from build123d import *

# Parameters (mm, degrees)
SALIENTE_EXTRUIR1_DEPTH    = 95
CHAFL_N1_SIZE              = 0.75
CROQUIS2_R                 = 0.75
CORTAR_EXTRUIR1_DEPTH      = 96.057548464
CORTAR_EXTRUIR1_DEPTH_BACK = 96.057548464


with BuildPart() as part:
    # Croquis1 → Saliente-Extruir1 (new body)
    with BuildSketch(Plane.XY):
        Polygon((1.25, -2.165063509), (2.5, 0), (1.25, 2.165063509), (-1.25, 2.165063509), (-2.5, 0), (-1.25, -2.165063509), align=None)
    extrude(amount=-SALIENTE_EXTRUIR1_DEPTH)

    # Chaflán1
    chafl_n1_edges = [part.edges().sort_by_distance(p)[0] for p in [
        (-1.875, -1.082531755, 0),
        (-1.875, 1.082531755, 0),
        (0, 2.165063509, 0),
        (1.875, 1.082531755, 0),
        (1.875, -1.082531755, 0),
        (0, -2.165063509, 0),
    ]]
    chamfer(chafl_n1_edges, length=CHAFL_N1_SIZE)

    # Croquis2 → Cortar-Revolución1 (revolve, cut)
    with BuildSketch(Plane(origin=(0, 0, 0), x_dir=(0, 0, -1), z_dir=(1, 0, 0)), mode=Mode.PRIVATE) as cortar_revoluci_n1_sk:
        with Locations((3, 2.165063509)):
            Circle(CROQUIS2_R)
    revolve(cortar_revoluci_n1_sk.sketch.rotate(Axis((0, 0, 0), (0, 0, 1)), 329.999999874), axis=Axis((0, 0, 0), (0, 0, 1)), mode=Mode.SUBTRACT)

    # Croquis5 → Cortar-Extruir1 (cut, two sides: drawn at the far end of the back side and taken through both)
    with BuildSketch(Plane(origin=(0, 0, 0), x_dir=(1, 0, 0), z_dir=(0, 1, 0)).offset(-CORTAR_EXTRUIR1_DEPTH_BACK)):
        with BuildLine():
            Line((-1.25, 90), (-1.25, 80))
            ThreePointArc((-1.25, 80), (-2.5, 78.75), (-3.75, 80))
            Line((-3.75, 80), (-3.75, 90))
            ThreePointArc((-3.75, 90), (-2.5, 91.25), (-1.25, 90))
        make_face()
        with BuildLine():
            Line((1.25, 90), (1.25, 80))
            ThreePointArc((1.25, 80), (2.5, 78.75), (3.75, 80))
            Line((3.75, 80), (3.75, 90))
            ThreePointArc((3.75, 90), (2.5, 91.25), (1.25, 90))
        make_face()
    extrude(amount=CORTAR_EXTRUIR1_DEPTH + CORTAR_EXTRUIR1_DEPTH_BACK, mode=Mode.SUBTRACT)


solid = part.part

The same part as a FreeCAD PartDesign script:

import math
import FreeCAD as App
import Part
import Sketcher

V = App.Vector
Q = App.Units.Quantity


def edges_at(feature, points):
    """Names of the edges that pass closest to the given points."""
    edges = feature.Shape.Edges
    near = lambda p: min(range(len(edges)), key=lambda i: edges[i].distToShape(Part.Vertex(*p))[0])
    return sorted({f"Edge{near(p) + 1}" for p in points})

doc = App.newDocument("Part")
body = doc.addObject("PartDesign::Body", "Body")

# Sketch on XY plane
sketch1 = body.newObject("Sketcher::SketchObject", "Sketch")
sketch1.AttachmentSupport = (doc.getObject("XY_Plane"), [""])
sketch1.MapMode = "FlatFace"
sketch1.addGeometry(Part.LineSegment(V(1.2, -2.2, 0), V(2.5, 0, 0)), False)
sketch1.addGeometry(Part.LineSegment(V(2.5, 0, 0), V(1.2, 2.2, 0)), False)
sketch1.addGeometry(Part.LineSegment(V(1.2, 2.2, 0), V(-1.2, 2.2, 0)), False)
sketch1.addGeometry(Part.LineSegment(V(-1.2, 2.2, 0), V(-2.5, 0, 0)), False)
sketch1.addGeometry(Part.LineSegment(V(-2.5, 0, 0), V(-1.2, -2.2, 0)), False)
sketch1.addGeometry(Part.LineSegment(V(-1.2, -2.2, 0), V(1.2, -2.2, 0)), False)
sketch1.addConstraint(Sketcher.Constraint("Coincident", 0, 2, 1, 1))
sketch1.addConstraint(Sketcher.Constraint("Coincident", 1, 2, 2, 1))
sketch1.addConstraint(Sketcher.Constraint("Coincident", 2, 2, 3, 1))
sketch1.addConstraint(Sketcher.Constraint("Coincident", 3, 2, 4, 1))
sketch1.addConstraint(Sketcher.Constraint("Coincident", 4, 2, 5, 1))
sketch1.addConstraint(Sketcher.Constraint("Coincident", 5, 2, 0, 1))
sketch1.addConstraint(Sketcher.Constraint("Horizontal", 2))
sketch1.addConstraint(Sketcher.Constraint("Horizontal", 5))
sketch1.addConstraint(Sketcher.Constraint("Symmetric", 0, 2, 3, 2, -1, 1))
sketch1.addConstraint(Sketcher.Constraint("Symmetric", 1, 2, 4, 2, -1, 1))
sketch1.addConstraint(Sketcher.Constraint("PointOnObject", 0, 2, -1))
sketch1.addConstraint(Sketcher.Constraint("Parallel", 0, 3))
sketch1.addConstraint(Sketcher.Constraint("Vertical", 2, 2, 4, 2))
sketch1.addConstraint(Sketcher.Constraint("Angle", 0, Q("60 deg")))
sketch1.addConstraint(Sketcher.Constraint("DistanceX", 2, 2, 2, 1, 2.5))
sketch1.addConstraint(Sketcher.Constraint("DistanceX", 3, 2, 0, 2, 5.0))
pad1 = body.newObject("PartDesign::Pad", "Pad")
pad1.Profile = sketch1
pad1.Length = 95
pad1.Reversed = True
doc.recompute()

chamfer = body.newObject("PartDesign::Chamfer", "Chamfer")
chamfer.Base = (pad1, edges_at(pad1, [
    (-1.875, -1.083, 0),
    (-1.875, 1.083, 0),
    (0, 2.165, 0),
    (1.875, 1.083, 0),
    (1.875, -1.083, 0),
    (0, -2.165, 0),
]))
chamfer.Size = 0.75

# Sketch on YZ plane
sketch2 = body.newObject("Sketcher::SketchObject", "Sketch001")
sketch2.AttachmentSupport = (doc.getObject("YZ_Plane"), [""])
sketch2.MapMode = "FlatFace"
sketch2.addGeometry(Part.Circle(V(2.2, -3, 0), V(0, 0, 1), 0.8), False)
sketch2.addConstraint(Sketcher.Constraint("Diameter", 0, 1.5))
sketch2.addConstraint(Sketcher.Constraint("DistanceY", 0, 3, -1, 1, 3.0))
sketch2.addConstraint(Sketcher.Constraint("DistanceX", -1, 1, 0, 3, 2.165064))
groove = body.newObject("PartDesign::Groove", "Groove")
groove.Profile = sketch2
groove.ReferenceAxis = (sketch2, ["V_Axis"])
groove.Angle = 360

# Sketch on XZ plane
sketch3 = body.newObject("Sketcher::SketchObject", "Sketch002")
sketch3.AttachmentSupport = (doc.getObject("XZ_Plane"), [""])
sketch3.MapMode = "FlatFace"
sketch3.addGeometry(Part.LineSegment(V(-1.2, -80, 0), V(-1.2, -90, 0)), False)
sketch3.addGeometry(Part.ArcOfCircle(Part.Circle(V(-2.5, -90, 0), V(0, 0, 1), 1.2), math.radians(180), math.radians(360)), False)
sketch3.addGeometry(Part.LineSegment(V(-3.8, -90, 0), V(-3.8, -80, 0)), False)
sketch3.addGeometry(Part.ArcOfCircle(Part.Circle(V(-2.5, -80, 0), V(0, 0, 1), 1.2), math.radians(0), math.radians(180)), False)
sketch3.addGeometry(Part.LineSegment(V(1.2, -90, 0), V(1.2, -80, 0)), False)
sketch3.addGeometry(Part.ArcOfCircle(Part.Circle(V(2.5, -80, 0), V(0, 0, 1), 1.2), math.radians(0), math.radians(180)), False)
sketch3.addGeometry(Part.LineSegment(V(3.8, -80, 0), V(3.8, -90, 0)), False)
sketch3.addGeometry(Part.ArcOfCircle(Part.Circle(V(2.5, -90, 0), V(0, 0, 1), 1.2), math.radians(180), math.radians(360)), False)
sketch3.addConstraint(Sketcher.Constraint("Tangent", 0, 2, 1, 2))
sketch3.addConstraint(Sketcher.Constraint("Tangent", 1, 1, 2, 1))
sketch3.addConstraint(Sketcher.Constraint("Tangent", 2, 2, 3, 2))
sketch3.addConstraint(Sketcher.Constraint("Tangent", 3, 1, 0, 1))
sketch3.addConstraint(Sketcher.Constraint("Tangent", 4, 2, 5, 2))
sketch3.addConstraint(Sketcher.Constraint("Tangent", 5, 1, 6, 1))
sketch3.addConstraint(Sketcher.Constraint("Tangent", 6, 2, 7, 2))
sketch3.addConstraint(Sketcher.Constraint("Tangent", 7, 1, 4, 1))
sketch3.addConstraint(Sketcher.Constraint("Vertical", 0))
sketch3.addConstraint(Sketcher.Constraint("Vertical", 2))
sketch3.addConstraint(Sketcher.Constraint("Vertical", 4))
sketch3.addConstraint(Sketcher.Constraint("Vertical", 6))
sketch3.addConstraint(Sketcher.Constraint("Equal", 3, 5))
sketch3.addConstraint(Sketcher.Constraint("Symmetric", 3, 3, 5, 3, -2))
sketch3.addConstraint(Sketcher.Constraint("Horizontal", 1, 3, 7, 3))
sketch3.addConstraint(Sketcher.Constraint("DistanceY", 0, 2, 0, 1, 10.0))
sketch3.addConstraint(Sketcher.Constraint("Radius", 1, 1.25))
sketch3.addConstraint(Sketcher.Constraint("DistanceY", 1, 3, -1, 1, 90.0))
sketch3.addConstraint(Sketcher.Constraint("DistanceX", 3, 3, 5, 3, 5.0))
pocket1 = body.newObject("PartDesign::Pocket", "Pocket")
pocket1.Profile = sketch3
pocket1.Type = "ThroughAll"
pocket1.Midplane = True

doc.recompute()
